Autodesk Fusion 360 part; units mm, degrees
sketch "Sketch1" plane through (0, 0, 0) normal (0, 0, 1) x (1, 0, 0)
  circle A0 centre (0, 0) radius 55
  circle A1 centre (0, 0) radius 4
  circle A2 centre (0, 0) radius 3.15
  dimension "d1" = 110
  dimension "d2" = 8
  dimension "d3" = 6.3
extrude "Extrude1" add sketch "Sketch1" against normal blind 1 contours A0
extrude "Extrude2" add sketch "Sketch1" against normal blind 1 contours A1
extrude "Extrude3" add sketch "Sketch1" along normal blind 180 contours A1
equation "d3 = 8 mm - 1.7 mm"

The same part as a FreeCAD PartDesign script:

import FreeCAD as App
import Part
import Sketcher
from FreeCAD import Vector

doc = App.newDocument("Part")
body = doc.addObject("PartDesign::Body", "Body")

# Sketch on XY plane
sketch1 = body.newObject("Sketcher::SketchObject", "Sketch")
sketch1.AttachmentSupport = (doc.getObject("XY_Plane"), [""])
sketch1.MapMode = "FlatFace"
sketch1.addGeometry([
    Part.Circle(Vector(0, 0, 0), Vector(0, 0, 1), 55),
    Part.Circle(Vector(0, 0, 0), Vector(0, 0, 1), 4),
], False)
sketch1.addConstraint([
    Sketcher.Constraint("Coincident", 0, 3, -1, 1),
    Sketcher.Constraint("Coincident", 1, 3, -1, 1),
    Sketcher.Constraint("Diameter", 0, 110.0),
    Sketcher.Constraint("Diameter", 1, 8.0),
])
pad1 = body.newObject("PartDesign::Pad", "Pad")
pad1.Profile = sketch1
pad1.Length = 1
pad1.Reversed = True

# Sketch on XY plane
sketch2 = body.newObject("Sketcher::SketchObject", "Sketch001")
sketch2.AttachmentSupport = (doc.getObject("XY_Plane"), [""])
sketch2.MapMode = "FlatFace"
sketch2.addGeometry([
    Part.Circle(Vector(0, 0, 0), Vector(0, 0, 1), 4),
    Part.Circle(Vector(0, 0, 0), Vector(0, 0, 1), 3.1),
], False)
sketch2.addConstraint([
    Sketcher.Constraint("Coincident", 0, 3, -1, 1),
    Sketcher.Constraint("Coincident", 1, 3, -1, 1),
    Sketcher.Constraint("Diameter", 0, 8.0),
    Sketcher.Constraint("Diameter", 1, 6.3),
])
pad2 = body.newObject("PartDesign::Pad", "Pad001")
pad2.Profile = sketch2
pad2.Length = 1
pad2.Reversed = True

# Sketch on XY plane
sketch3 = body.newObject("Sketcher::SketchObject", "Sketch002")
sketch3.AttachmentSupport = (doc.getObject("XY_Plane"), [""])
sketch3.MapMode = "FlatFace"
sketch3.addGeometry([
    Part.Circle(Vector(0, 0, 0), Vector(0, 0, 1), 4),
    Part.Circle(Vector(0, 0, 0), Vector(0, 0, 1), 3.1),
], False)
sketch3.addConstraint([
    Sketcher.Constraint("Coincident", 0, 3, -1, 1),
    Sketcher.Constraint("Coincident", 1, 3, -1, 1),
    Sketcher.Constraint("Diameter", 0, 8.0),
    Sketcher.Constraint("Diameter", 1, 6.3),
])
pad3 = body.newObject("PartDesign::Pad", "Pad002")
pad3.Profile = sketch3
pad3.Length = 180

doc.recompute()
